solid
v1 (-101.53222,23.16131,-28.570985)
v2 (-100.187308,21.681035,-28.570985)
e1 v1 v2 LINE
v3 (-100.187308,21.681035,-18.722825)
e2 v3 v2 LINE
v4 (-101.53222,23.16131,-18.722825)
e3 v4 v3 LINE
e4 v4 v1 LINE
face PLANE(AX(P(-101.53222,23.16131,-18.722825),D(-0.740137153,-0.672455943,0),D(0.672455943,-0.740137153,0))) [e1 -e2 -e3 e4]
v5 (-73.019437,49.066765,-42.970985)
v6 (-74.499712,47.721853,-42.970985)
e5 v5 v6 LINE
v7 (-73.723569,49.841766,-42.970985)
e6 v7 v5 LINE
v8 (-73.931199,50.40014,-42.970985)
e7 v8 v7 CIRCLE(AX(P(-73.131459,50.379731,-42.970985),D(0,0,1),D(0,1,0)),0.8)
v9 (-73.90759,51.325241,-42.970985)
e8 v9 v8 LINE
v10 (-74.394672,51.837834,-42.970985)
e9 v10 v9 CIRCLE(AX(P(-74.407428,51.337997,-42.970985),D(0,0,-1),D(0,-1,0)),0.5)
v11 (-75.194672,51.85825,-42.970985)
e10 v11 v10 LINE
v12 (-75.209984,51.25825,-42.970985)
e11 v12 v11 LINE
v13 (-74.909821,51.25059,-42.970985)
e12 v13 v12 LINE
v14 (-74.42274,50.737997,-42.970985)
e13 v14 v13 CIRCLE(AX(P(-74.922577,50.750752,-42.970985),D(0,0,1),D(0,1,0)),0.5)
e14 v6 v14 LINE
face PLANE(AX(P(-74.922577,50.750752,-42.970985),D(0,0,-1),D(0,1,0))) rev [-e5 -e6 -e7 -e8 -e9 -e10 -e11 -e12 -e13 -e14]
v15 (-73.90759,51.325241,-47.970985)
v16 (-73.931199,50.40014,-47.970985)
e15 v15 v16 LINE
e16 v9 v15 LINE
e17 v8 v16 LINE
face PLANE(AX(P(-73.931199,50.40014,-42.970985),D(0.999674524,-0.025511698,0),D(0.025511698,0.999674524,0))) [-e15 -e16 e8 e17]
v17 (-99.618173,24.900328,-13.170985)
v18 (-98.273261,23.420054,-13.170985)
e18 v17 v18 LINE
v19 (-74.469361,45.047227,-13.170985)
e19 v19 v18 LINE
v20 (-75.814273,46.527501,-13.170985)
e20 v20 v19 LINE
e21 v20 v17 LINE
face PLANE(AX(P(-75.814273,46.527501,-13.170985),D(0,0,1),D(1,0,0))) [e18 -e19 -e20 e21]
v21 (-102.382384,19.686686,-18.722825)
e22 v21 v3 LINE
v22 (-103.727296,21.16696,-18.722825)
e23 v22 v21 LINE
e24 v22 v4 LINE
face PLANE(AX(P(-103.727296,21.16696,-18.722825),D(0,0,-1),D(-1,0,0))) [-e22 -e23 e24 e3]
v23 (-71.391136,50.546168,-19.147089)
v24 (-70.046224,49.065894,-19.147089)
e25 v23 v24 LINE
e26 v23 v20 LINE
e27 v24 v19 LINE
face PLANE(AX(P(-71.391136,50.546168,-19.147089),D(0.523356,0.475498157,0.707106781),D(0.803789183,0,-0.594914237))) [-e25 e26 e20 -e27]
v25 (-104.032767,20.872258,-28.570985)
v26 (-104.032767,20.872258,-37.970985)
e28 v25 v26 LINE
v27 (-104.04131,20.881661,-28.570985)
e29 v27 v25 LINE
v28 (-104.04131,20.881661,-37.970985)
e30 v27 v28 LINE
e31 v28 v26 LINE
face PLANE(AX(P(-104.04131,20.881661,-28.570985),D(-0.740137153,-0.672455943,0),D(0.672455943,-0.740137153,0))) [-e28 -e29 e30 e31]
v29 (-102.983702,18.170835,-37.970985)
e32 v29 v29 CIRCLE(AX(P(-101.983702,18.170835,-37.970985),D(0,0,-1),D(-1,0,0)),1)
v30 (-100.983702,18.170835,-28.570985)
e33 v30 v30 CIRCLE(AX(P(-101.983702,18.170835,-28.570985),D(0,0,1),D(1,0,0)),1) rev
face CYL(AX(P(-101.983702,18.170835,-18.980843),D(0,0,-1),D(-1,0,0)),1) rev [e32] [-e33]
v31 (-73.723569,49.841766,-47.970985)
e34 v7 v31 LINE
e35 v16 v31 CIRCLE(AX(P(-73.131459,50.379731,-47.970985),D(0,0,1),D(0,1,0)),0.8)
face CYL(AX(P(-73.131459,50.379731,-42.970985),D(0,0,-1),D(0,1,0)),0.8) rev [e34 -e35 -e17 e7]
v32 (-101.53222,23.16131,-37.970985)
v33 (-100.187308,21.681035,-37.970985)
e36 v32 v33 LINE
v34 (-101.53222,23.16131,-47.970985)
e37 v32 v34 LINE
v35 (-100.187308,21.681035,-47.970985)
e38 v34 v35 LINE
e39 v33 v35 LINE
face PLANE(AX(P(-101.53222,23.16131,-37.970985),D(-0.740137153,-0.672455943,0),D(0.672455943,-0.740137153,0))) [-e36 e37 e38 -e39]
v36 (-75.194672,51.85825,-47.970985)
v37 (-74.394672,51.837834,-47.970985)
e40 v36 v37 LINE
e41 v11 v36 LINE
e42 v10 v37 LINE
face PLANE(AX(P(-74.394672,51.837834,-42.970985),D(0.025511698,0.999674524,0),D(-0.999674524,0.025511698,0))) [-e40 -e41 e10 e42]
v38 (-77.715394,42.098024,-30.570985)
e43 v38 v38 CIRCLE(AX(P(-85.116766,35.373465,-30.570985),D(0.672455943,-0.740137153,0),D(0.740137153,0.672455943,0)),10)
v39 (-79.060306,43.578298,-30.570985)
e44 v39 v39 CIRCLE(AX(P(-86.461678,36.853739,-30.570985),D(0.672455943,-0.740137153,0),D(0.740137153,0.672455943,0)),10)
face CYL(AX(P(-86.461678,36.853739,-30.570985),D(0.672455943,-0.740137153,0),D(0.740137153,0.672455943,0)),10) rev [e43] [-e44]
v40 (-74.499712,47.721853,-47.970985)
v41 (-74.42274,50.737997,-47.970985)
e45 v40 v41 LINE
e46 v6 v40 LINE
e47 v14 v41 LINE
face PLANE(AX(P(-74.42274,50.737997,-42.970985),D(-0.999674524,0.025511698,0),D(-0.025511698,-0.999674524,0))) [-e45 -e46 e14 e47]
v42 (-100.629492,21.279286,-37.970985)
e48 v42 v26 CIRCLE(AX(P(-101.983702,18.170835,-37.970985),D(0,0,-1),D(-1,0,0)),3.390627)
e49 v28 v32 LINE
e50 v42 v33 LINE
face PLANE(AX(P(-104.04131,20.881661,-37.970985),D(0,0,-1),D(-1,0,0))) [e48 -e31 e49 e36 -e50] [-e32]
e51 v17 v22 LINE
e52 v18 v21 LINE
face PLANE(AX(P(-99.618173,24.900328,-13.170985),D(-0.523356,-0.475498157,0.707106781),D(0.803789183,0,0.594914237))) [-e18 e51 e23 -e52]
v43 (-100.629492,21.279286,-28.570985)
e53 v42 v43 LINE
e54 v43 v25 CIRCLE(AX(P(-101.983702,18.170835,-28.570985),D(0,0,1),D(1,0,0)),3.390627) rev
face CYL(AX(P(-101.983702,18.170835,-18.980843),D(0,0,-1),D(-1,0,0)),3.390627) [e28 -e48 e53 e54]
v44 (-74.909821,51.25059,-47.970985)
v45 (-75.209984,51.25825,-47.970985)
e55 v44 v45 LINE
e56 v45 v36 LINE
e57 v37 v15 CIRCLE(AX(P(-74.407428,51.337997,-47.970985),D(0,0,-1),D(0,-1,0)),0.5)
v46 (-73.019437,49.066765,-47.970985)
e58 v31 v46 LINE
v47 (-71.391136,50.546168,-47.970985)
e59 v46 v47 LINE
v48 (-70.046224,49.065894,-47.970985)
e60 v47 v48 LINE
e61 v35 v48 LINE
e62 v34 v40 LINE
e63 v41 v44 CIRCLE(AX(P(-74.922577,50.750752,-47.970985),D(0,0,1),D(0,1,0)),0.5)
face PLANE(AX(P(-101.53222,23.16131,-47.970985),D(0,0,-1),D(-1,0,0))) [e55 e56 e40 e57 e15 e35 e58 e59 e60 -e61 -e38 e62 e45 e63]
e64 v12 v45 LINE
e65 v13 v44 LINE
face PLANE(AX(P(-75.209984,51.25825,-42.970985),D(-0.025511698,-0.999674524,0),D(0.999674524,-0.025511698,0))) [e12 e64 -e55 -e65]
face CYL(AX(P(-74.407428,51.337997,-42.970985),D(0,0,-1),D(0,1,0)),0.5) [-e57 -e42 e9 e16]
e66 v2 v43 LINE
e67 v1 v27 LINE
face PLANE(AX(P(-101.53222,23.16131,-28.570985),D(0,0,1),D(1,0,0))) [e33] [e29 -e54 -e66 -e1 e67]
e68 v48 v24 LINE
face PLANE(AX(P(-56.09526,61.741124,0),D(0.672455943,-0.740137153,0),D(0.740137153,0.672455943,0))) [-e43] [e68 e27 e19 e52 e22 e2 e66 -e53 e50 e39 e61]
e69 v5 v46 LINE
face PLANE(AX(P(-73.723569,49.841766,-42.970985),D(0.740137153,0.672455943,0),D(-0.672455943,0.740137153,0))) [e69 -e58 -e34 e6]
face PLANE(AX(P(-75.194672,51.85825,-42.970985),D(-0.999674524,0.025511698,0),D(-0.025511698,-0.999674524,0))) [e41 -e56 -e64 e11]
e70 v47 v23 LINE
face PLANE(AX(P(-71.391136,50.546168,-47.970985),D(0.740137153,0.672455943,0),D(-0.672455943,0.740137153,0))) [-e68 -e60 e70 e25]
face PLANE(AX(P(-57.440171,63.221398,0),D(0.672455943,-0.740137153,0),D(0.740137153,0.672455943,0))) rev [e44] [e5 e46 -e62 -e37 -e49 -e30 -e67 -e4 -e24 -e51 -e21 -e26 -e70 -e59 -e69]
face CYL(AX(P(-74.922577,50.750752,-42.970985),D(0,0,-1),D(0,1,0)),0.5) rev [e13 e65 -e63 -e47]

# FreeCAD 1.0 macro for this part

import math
import FreeCAD as App
import Part
import Sketcher

V = App.Vector
Q = App.Units.Quantity


def add_polygon(sketch, points):
    """Adds a closed chain of lines whose ends are joined by coincident constraints."""
    first, n = sketch.GeometryCount, len(points)
    for a, b in zip(points, points[1:] + points[:1]):
        sketch.addGeometry(Part.LineSegment(App.Vector(*a, 0), App.Vector(*b, 0)), False)
    for i in range(n):
        sketch.addConstraint(Sketcher.Constraint("Coincident", first + i, 2, first + (i + 1) % n, 1))

doc = App.newDocument("Part")
body = doc.addObject("PartDesign::Body", "Body")

# Sketch on an angled plane
sketch1 = doc.addObject("Sketcher::SketchObject", "Sketch")
body.addObject(sketch1)
sketch1.Placement = App.Placement(V(-56.09526, 61.741124, 0), App.Rotation(V(0, 0, 1), V(-0.740137153, -0.672455943, 0), V(0.672455943, -0.740137153, 0), "ZXY"))
add_polygon(sketch1, [(-13.2, 24.8), (-13.2, 57), (-18.7, 62.5), (-18.7, 59.6), (-28.6, 59.6), (-28.6, 63), (-38, 63), (-38, 59.6), (-48, 59.6), (-48, 18.8), (-19.1, 18.8)])  # lines 0-10
sketch1.addConstraint(Sketcher.Constraint("Vertical", 0))
sketch1.addConstraint(Sketcher.Constraint("Vertical", 2))
sketch1.addConstraint(Sketcher.Constraint("Horizontal", 3))
sketch1.addConstraint(Sketcher.Constraint("Vertical", 4))
sketch1.addConstraint(Sketcher.Constraint("Horizontal", 5))
sketch1.addConstraint(Sketcher.Constraint("Vertical", 6))
sketch1.addConstraint(Sketcher.Constraint("Horizontal", 7))
sketch1.addConstraint(Sketcher.Constraint("Vertical", 8))
sketch1.addConstraint(Sketcher.Constraint("Horizontal", 9))
sketch1.addConstraint(Sketcher.Constraint("Perpendicular", 1, 10))
sketch1.addConstraint(Sketcher.Constraint("Horizontal", 3, 2, 6, 2))
sketch1.addConstraint(Sketcher.Constraint("DistanceX", 7, 2, 7, 1, 10.0))
sketch1.addConstraint(Sketcher.Constraint("Angle", 1, Q("135 deg")))
sketch1.addConstraint(Sketcher.Constraint("DistanceX", 5, 2, 5, 1, 9.4))
sketch1.addConstraint(Sketcher.Constraint("DistanceX", 3, 2, 0, 2, 15.4))
sketch1.addConstraint(Sketcher.Constraint("DistanceX", 3, 2, 3, 1, 9.84816))
sketch1.addConstraint(Sketcher.Constraint("DistanceY", 0, 1, 0, 2, 32.161472))
sketch1.addConstraint(Sketcher.Constraint("DistanceY", 2, 2, 2, 1, 2.96577))
sketch1.addConstraint(Sketcher.Constraint("DistanceX", 9, 1, 9, 2, 28.823896))
sketch1.addConstraint(Sketcher.Constraint("DistanceY", 4, 1, 4, 2, 3.390034))
sketch1.addConstraint(Sketcher.Constraint("DistanceY", -1, 1, 4, 2, 62.962841))
sketch1.addConstraint(Sketcher.Constraint("DistanceX", 9, 2, -1, 1, 19.147089))
pad1 = doc.addObject("PartDesign::Pad", "Pad")
body.addObject(pad1)
pad1.Profile = sketch1
pad1.Length = 2
pad1.Reversed = True

# Sketch on XY plane
sketch2 = doc.addObject("Sketcher::SketchObject", "Sketch001")
body.addObject(sketch2)
sketch2.AttachmentSupport = (doc.XY_Plane, [""])
sketch2.MapMode = "FlatFace"
sketch2.AttachmentOffset = App.Placement(V(0, 0, -37.970985), App.Rotation())
sketch2.addGeometry(Part.Circle(V(-102, 18.2, 0), V(0, 0, 1), 3.4), False)
sketch2.addGeometry(Part.Circle(V(-102, 18.2, 0), V(0, 0, 1), 1), False)
sketch2.addConstraint(Sketcher.Constraint("Coincident", 1, 3, 0, 3))
sketch2.addConstraint(Sketcher.Constraint("Diameter", 1, 2.0))
sketch2.addConstraint(Sketcher.Constraint("Diameter", 0, 6.781255))
sketch2.addConstraint(Sketcher.Constraint("DistanceX", 0, 3, -1, 1, 101.983702))
sketch2.addConstraint(Sketcher.Constraint("DistanceY", -1, 1, 0, 3, 18.170835))
pad2 = doc.addObject("PartDesign::Pad", "Pad001")
body.addObject(pad2)
pad2.Profile = sketch2
pad2.Length = 9.4

# Sketch on an angled plane
sketch3 = doc.addObject("Sketcher::SketchObject", "Sketch002")
body.addObject(sketch3)
sketch3.Placement = App.Placement(V(-56.09526, 61.741124, 0), App.Rotation(V(0, 0, -1), V(0.740137153, 0.672455943, 0), V(0.672455943, -0.740137153, 0), "ZXY"))
sketch3.addGeometry(Part.Circle(V(31, -39, 0), V(0, 0, 1), 10), False)
sketch3.addConstraint(Sketcher.Constraint("Diameter", 0, 20.0))
sketch3.addConstraint(Sketcher.Constraint("DistanceX", -1, 1, 0, 3, 30.570985))
sketch3.addConstraint(Sketcher.Constraint("DistanceY", 0, 3, -1, 1, 39.210984))
pocket1 = doc.addObject("PartDesign::Pocket", "Pocket")
body.addObject(pocket1)
pocket1.Profile = sketch3
pocket1.Length = 2

# Sketch on XY plane
sketch4 = doc.addObject("Sketcher::SketchObject", "Sketch003")
body.addObject(sketch4)
sketch4.AttachmentSupport = (doc.XY_Plane, [""])
sketch4.MapMode = "FlatFace"
sketch4.AttachmentOffset = App.Placement(V(0, 0, -47.970985), App.Rotation())
sketch4.addGeometry(Part.LineSegment(V(-73.91, 51.33, 0), V(-73.93, 50.4, 0)), False)
sketch4.addGeometry(Part.ArcOfCircle(Part.Circle(V(-73.13, 50.38, 0), V(0, 0, 1), 0.8), math.radians(179), math.radians(222)), False)
sketch4.addGeometry(Part.LineSegment(V(-73.72, 49.84, 0), V(-73.02, 49.07, 0)), False)
sketch4.addGeometry(Part.LineSegment(V(-73.02, 49.07, 0), V(-74.5, 47.72, 0)), False)
sketch4.addGeometry(Part.LineSegment(V(-74.5, 47.72, 0), V(-74.42, 50.74, 0)), False)
sketch4.addGeometry(Part.ArcOfCircle(Part.Circle(V(-74.92, 50.75, 0), V(0, 0, 1), 0.5), math.radians(-1), math.radians(89)), False)
sketch4.addGeometry(Part.LineSegment(V(-74.91, 51.25, 0), V(-75.21, 51.26, 0)), False)
sketch4.addGeometry(Part.LineSegment(V(-75.21, 51.26, 0), V(-75.19, 51.86, 0)), False)
sketch4.addGeometry(Part.LineSegment(V(-75.19, 51.86, 0), V(-74.39, 51.84, 0)), False)
sketch4.addGeometry(Part.ArcOfCircle(Part.Circle(V(-74.41, 51.34, 0), V(0, 0, 1), 0.5), math.radians(-1), math.radians(89)), False)
sketch4.addConstraint(Sketcher.Constraint("Tangent", 0, 2, 1, 1))
sketch4.addConstraint(Sketcher.Constraint("Tangent", 1, 2, 2, 1))
sketch4.addConstraint(Sketcher.Constraint("Coincident", 2, 2, 3, 1))
sketch4.addConstraint(Sketcher.Constraint("Coincident", 3, 2, 4, 1))
sketch4.addConstraint(Sketcher.Constraint("Tangent", 4, 2, 5, 1))
sketch4.addConstraint(Sketcher.Constraint("Tangent", 5, 2, 6, 1))
sketch4.addConstraint(Sketcher.Constraint("Coincident", 6, 2, 7, 1))
sketch4.addConstraint(Sketcher.Constraint("Coincident", 7, 2, 8, 1))
sketch4.addConstraint(Sketcher.Constraint("Tangent", 8, 2, 9, 2))
sketch4.addConstraint(Sketcher.Constraint("Tangent", 9, 1, 0, 1))
sketch4.addConstraint(Sketcher.Constraint("Equal", 5, 9))
sketch4.addConstraint(Sketcher.Constraint("Perpendicular", 2, 3))
sketch4.addConstraint(Sketcher.Constraint("Parallel", 0, 4))
sketch4.addConstraint(Sketcher.Constraint("Perpendicular", 4, 6))
sketch4.addConstraint(Sketcher.Constraint("Perpendicular", 6, 7))
sketch4.addConstraint(Sketcher.Constraint("Perpendicular", 7, 8))
sketch4.addConstraint(Sketcher.Constraint("Radius", 1, 0.8))
sketch4.addConstraint(Sketcher.Constraint("Radius", 5, 0.5))
sketch4.addConstraint(Sketcher.Constraint("Distance", 3, 2.0))
sketch4.addConstraint(Sketcher.Constraint("DistanceY", 4, 2, 9, 3, 0.6))
sketch4.addConstraint(Sketcher.Constraint("DistanceY", 6, 2, 7, 2, 0.6))
sketch4.addConstraint(Sketcher.Constraint("DistanceX", 7, 2, 8, 2, 0.8))
sketch4.addConstraint(Sketcher.Constraint("DistanceY", 2, 2, 1, 2, 0.775001))
sketch4.addConstraint(Sketcher.Constraint("Distance", 0, 0.925402))
sketch4.addConstraint(Sketcher.Constraint("DistanceX", 0, 2, -1, 1, 73.931199))
sketch4.addConstraint(Sketcher.Constraint("DistanceY", 3, 2, 5, 3, 3.028899))
sketch4.addConstraint(Sketcher.Constraint("DistanceY", -1, 1, 1, 3, 50.379731))
pad3 = doc.addObject("PartDesign::Pad", "Pad002")
body.addObject(pad3)
pad3.Profile = sketch4
pad3.Length = 5

doc.recompute()
